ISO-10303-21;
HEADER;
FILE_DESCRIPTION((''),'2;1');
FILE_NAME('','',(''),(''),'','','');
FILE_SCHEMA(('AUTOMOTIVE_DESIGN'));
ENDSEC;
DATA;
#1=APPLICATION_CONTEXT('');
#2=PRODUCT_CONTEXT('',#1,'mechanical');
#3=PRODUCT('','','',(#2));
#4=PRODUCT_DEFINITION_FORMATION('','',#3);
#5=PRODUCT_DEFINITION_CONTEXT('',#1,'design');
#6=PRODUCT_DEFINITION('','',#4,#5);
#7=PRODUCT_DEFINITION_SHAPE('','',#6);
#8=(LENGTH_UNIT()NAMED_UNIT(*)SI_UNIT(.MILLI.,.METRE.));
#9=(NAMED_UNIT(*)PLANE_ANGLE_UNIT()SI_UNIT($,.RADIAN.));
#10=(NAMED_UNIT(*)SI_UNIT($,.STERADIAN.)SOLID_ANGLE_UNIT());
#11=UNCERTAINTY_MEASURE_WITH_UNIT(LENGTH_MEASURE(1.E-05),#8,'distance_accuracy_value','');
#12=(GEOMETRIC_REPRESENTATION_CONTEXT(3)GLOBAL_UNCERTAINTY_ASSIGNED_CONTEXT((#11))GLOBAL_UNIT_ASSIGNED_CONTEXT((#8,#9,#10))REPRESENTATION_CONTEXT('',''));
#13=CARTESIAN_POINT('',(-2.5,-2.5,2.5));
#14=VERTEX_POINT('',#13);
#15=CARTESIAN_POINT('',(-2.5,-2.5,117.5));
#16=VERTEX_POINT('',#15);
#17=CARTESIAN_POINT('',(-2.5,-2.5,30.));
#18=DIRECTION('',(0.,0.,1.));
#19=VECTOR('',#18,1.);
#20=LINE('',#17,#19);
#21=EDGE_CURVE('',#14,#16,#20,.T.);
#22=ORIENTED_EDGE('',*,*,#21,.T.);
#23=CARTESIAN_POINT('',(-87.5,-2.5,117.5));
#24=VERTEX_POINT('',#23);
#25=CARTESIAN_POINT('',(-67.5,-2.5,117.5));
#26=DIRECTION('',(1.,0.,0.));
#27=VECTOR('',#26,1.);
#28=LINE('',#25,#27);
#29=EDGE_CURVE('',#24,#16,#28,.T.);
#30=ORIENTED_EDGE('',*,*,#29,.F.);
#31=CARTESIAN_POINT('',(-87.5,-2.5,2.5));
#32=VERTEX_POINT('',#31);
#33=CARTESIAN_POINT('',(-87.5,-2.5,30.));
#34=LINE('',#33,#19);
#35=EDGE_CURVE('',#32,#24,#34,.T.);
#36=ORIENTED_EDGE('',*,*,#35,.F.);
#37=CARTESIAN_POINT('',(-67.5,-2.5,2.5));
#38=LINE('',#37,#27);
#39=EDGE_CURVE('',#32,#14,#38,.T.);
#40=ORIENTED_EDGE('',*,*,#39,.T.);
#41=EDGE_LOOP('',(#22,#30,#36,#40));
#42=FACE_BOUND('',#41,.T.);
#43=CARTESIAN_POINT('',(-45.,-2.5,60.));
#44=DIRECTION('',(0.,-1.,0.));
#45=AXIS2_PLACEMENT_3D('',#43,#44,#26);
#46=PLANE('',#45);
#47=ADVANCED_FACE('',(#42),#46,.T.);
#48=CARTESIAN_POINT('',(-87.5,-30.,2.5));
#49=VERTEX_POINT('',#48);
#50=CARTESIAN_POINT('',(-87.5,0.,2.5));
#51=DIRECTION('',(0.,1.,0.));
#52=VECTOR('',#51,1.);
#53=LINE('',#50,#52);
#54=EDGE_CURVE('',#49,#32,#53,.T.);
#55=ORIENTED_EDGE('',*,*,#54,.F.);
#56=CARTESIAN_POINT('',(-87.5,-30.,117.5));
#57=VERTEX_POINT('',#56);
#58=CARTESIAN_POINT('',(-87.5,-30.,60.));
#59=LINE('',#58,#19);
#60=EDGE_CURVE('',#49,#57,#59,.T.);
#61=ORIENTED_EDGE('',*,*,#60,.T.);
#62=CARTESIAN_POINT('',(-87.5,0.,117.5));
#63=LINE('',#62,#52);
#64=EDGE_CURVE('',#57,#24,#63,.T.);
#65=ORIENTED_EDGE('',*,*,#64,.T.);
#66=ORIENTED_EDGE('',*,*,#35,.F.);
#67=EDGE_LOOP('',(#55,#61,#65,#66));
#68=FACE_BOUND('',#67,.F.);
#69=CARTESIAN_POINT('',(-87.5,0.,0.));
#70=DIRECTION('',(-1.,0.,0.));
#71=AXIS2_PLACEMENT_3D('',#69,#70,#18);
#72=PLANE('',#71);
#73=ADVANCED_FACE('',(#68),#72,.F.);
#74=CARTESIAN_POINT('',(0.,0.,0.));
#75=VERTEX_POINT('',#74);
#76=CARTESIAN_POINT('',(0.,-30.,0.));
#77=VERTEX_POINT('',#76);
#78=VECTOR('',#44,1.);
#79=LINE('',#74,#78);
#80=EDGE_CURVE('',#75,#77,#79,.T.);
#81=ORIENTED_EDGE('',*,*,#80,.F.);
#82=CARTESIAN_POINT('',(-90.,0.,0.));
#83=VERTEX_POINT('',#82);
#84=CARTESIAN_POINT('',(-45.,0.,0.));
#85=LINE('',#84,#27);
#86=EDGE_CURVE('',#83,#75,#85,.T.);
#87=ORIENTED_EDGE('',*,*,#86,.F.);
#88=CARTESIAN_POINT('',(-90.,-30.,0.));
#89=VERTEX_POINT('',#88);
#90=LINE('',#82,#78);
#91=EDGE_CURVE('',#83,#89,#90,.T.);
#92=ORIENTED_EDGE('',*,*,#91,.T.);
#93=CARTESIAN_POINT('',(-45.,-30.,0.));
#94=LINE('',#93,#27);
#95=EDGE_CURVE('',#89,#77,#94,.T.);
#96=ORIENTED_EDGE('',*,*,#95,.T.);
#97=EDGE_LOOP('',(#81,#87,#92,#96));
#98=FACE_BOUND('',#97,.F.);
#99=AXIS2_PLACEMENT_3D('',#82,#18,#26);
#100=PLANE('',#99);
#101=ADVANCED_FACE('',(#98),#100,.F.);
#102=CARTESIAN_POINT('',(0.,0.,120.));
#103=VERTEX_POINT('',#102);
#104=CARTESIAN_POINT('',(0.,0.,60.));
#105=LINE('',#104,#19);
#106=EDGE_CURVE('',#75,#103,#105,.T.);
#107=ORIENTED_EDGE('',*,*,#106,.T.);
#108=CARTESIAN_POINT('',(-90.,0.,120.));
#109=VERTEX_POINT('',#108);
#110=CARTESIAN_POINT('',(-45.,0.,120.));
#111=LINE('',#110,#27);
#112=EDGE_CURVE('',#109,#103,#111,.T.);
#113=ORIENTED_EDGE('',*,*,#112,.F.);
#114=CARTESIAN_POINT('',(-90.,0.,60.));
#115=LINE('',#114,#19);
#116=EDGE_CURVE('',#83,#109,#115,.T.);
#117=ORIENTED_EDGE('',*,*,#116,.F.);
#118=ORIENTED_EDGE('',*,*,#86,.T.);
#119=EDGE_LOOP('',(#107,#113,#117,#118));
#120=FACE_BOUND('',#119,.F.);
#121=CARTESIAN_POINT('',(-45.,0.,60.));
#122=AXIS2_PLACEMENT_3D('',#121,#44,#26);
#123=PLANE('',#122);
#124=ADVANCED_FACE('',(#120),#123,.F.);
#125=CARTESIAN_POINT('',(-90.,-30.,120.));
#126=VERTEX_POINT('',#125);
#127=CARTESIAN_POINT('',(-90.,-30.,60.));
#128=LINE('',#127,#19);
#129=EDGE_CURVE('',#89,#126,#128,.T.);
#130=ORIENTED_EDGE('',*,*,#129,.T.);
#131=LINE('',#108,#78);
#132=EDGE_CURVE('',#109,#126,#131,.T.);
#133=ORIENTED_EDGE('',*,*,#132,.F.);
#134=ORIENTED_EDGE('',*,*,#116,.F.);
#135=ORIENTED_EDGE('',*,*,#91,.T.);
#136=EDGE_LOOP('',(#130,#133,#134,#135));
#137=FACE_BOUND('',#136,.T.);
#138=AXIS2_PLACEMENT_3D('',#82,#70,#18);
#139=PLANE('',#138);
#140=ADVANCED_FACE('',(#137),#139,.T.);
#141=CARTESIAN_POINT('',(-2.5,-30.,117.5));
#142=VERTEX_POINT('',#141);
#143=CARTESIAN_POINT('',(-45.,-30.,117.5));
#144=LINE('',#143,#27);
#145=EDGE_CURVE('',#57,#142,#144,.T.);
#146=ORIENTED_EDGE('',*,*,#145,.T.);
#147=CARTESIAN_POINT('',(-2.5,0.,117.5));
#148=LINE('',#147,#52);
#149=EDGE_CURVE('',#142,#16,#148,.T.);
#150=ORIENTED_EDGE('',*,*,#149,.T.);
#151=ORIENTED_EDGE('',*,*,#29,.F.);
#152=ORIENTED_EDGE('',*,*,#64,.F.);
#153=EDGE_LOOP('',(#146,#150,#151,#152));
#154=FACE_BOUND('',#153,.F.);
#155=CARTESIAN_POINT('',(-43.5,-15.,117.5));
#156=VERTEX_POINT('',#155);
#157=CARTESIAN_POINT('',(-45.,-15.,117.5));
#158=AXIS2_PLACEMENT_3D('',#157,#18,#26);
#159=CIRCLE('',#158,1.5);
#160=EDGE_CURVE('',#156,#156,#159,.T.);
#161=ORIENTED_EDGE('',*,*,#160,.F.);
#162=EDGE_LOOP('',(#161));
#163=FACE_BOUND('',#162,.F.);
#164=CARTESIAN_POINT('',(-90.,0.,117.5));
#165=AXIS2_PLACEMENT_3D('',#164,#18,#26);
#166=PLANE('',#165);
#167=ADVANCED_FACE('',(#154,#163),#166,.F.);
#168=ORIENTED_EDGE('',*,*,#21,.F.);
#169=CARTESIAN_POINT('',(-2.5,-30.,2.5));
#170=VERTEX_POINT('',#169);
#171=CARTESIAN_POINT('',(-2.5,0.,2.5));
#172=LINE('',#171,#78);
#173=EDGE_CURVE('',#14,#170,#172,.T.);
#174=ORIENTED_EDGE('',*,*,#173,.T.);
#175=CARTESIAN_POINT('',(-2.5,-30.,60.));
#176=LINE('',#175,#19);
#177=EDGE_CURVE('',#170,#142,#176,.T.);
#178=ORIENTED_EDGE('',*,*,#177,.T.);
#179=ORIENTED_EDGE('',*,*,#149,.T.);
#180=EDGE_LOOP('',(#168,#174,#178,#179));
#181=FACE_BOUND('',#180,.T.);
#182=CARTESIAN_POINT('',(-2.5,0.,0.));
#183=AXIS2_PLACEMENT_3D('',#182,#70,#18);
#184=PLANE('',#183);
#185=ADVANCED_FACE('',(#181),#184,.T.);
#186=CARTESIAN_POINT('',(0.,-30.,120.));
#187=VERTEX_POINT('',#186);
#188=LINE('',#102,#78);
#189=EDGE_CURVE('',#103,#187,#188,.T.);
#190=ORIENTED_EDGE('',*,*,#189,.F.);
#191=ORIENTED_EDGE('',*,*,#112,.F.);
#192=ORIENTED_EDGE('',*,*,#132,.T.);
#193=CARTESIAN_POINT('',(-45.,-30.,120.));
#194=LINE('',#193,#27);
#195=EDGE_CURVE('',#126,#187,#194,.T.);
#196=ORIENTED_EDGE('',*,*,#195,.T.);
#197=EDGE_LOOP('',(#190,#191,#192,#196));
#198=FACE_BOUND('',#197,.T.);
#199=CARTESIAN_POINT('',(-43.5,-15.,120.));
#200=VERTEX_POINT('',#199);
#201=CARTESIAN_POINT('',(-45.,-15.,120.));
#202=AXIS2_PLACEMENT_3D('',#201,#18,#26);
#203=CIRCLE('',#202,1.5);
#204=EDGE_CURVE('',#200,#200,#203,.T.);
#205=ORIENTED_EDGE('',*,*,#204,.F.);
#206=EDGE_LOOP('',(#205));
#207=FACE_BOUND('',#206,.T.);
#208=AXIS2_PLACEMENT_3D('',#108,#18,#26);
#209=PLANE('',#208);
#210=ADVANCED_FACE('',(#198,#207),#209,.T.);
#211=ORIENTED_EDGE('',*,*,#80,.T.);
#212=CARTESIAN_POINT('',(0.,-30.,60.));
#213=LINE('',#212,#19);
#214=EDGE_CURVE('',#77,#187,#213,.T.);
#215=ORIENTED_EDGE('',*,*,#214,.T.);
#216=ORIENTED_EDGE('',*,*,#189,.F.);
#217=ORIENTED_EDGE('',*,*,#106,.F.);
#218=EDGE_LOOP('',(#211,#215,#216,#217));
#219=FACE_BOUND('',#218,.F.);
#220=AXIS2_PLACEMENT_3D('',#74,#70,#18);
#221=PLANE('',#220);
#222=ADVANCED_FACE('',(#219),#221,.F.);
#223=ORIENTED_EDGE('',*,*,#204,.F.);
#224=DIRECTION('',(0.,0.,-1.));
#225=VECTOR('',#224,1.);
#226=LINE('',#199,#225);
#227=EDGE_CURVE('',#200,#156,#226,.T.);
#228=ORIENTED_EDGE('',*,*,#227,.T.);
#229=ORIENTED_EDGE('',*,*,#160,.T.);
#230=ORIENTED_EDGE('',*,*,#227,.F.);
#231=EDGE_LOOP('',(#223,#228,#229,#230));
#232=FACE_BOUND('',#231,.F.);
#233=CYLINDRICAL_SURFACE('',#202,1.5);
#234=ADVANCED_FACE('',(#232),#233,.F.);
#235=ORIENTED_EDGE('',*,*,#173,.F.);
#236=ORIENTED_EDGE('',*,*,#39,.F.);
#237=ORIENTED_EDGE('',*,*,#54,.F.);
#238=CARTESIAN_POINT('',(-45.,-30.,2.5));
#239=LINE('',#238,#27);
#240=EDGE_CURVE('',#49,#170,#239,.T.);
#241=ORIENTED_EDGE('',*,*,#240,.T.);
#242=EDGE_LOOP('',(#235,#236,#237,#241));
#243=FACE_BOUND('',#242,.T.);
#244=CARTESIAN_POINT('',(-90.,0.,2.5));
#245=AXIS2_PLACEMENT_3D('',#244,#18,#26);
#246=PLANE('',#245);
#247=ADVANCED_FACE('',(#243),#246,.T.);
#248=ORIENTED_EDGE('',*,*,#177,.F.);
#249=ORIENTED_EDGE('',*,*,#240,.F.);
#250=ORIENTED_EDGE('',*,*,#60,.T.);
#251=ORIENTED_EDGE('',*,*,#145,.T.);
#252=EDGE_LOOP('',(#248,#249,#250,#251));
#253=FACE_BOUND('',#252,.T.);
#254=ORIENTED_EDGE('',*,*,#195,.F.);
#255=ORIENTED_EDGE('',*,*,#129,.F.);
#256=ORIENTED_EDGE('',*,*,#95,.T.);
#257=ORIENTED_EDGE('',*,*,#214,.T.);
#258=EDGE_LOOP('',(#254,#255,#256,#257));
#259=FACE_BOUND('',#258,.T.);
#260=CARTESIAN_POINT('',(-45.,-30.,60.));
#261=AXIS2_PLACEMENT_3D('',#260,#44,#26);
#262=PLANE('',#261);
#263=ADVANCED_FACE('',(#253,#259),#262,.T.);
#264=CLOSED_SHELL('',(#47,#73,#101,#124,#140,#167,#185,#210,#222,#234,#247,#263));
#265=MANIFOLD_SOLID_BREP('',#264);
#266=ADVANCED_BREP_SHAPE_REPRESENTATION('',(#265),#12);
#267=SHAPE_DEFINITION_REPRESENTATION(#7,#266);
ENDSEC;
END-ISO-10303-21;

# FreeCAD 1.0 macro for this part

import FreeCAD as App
import Part
import Sketcher
from FreeCAD import Vector
Q = App.Units.Quantity


def faces_at(feature, points):
    """Names of the faces that lie closest to the given points."""
    faces = feature.Shape.Faces
    near = lambda p: min(range(len(faces)), key=lambda i: faces[i].distToShape(Part.Vertex(*p))[0])
    return sorted({f"Face{near(p) + 1}" for p in points})

doc = App.newDocument("Part")
body = doc.addObject("PartDesign::Body", "Body")

# Sketch on XZ plane
sketch1 = body.newObject("Sketcher::SketchObject", "Sketch")
sketch1.AttachmentSupport = (doc.getObject("XZ_Plane"), [""])
sketch1.MapMode = "FlatFace"
sketch1.addGeometry([
    Part.LineSegment(Vector(-90, 120, 0), Vector(-90, 0, 0)),
    Part.LineSegment(Vector(-90, 0, 0), Vector(0, 0, 0)),
    Part.LineSegment(Vector(0, 0, 0), Vector(0, 120, 0)),
    Part.LineSegment(Vector(0, 120, 0), Vector(-90, 120, 0)),
], False)
sketch1.addConstraint([
    Sketcher.Constraint("Coincident", 0, 2, 1, 1),
    Sketcher.Constraint("Coincident", 1, 2, 2, 1),
    Sketcher.Constraint("Coincident", 2, 2, 3, 1),
    Sketcher.Constraint("Coincident", 3, 2, 0, 1),
    Sketcher.Constraint("Vertical", 0),
    Sketcher.Constraint("Horizontal", 1),
    Sketcher.Constraint("Vertical", 2),
    Sketcher.Constraint("Horizontal", 3),
    Sketcher.Constraint("Coincident", 1, 2, -1, 1),
    Sketcher.Constraint("DistanceX", 1, 1, 1, 2, Q("90 mm")),
    Sketcher.Constraint("DistanceY", 0, 2, 0, 1, Q("120 mm")),
])
pad1 = body.newObject("PartDesign::Pad", "Pad")
pad1.Profile = sketch1
pad1.Length = 30
doc.recompute()

thickness = body.newObject("PartDesign::Thickness", "Thickness")
thickness.Base = (pad1, faces_at(pad1, [(-45, -30, 60)]))
thickness.Value = 2.5
thickness.Reversed = True
thickness.Join = "Arc"

# Sketch on XY plane
sketch2 = body.newObject("Sketcher::SketchObject", "Sketch001")
sketch2.AttachmentSupport = (doc.getObject("XY_Plane"), [""])
sketch2.MapMode = "FlatFace"
sketch2.AttachmentOffset = App.Placement(Vector(0, 0, 120), App.Rotation())
sketch2.addGeometry(Part.Circle(Vector(-45, -15, 0), Vector(0, 0, 1), 1.5), False)
sketch2.addConstraint([
    Sketcher.Constraint("Diameter", 0, Q("3 mm")),
    Sketcher.Constraint("DistanceX", 0, 3, -1, 1, Q("45 mm")),
    Sketcher.Constraint("DistanceY", 0, 3, -1, 1, Q("15 mm")),
])
pocket1 = body.newObject("PartDesign::Pocket", "Pocket")
pocket1.Profile = sketch2
pocket1.Length = 25

doc.recompute()
